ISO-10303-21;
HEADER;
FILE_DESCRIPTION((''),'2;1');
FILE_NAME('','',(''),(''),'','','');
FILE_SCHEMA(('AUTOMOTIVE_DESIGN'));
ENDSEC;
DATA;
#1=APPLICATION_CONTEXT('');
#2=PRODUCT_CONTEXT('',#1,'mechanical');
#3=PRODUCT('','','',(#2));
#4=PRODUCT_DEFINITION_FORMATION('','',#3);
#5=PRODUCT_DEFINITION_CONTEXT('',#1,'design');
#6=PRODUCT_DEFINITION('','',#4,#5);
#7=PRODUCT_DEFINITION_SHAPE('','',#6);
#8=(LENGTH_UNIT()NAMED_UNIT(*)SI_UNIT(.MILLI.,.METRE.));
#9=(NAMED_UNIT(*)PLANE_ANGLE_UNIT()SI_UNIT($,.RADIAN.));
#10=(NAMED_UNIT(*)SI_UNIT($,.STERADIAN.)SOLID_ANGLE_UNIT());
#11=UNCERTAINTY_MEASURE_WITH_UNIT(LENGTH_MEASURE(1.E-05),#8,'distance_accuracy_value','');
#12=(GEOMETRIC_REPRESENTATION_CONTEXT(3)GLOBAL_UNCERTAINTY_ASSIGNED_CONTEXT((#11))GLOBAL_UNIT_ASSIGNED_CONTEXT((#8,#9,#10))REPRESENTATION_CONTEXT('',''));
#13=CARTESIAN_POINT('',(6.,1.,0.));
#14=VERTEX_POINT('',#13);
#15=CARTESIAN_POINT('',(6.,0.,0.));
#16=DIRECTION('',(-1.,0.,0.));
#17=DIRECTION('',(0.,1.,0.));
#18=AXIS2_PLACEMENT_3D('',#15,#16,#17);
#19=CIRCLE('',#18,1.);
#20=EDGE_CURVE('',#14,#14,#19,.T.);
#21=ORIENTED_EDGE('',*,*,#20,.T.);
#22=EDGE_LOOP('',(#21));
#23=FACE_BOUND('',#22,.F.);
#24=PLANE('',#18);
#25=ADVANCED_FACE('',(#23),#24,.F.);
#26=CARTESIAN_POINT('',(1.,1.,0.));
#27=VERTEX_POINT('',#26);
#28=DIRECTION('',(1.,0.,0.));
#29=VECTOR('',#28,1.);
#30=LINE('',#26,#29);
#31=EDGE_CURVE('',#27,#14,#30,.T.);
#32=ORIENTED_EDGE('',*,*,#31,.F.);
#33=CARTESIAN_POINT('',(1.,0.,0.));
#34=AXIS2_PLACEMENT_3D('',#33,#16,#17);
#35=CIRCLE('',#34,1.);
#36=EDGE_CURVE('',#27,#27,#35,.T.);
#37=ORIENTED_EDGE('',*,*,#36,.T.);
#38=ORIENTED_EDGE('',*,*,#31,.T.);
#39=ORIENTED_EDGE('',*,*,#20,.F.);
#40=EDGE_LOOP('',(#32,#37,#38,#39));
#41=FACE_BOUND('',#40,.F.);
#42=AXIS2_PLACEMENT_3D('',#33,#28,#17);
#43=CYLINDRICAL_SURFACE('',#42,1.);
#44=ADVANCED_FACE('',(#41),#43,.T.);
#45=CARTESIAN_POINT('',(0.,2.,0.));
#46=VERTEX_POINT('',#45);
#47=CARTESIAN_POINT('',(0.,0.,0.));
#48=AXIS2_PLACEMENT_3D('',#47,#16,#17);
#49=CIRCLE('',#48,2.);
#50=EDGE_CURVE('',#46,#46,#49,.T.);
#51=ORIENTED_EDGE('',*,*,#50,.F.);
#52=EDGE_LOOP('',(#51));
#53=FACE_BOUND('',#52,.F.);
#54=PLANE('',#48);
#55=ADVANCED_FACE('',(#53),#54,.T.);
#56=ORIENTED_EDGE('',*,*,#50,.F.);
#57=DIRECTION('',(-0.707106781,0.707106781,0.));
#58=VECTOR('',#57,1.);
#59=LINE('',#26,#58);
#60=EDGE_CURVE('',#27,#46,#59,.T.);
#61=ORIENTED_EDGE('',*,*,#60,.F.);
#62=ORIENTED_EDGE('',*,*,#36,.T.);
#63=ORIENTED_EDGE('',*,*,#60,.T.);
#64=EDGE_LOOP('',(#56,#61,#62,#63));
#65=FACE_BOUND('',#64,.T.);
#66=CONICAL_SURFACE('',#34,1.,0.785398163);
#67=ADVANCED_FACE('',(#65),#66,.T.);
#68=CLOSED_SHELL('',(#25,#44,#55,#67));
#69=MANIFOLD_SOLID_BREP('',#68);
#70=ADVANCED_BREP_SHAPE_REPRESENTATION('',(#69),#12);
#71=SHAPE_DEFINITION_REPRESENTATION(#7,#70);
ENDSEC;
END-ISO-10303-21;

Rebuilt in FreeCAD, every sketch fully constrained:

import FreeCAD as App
import Part
import Sketcher
from FreeCAD import Vector
Q = App.Units.Quantity


def add_polygon(sketch, points):
    """Adds a closed chain of lines whose ends are joined by coincident constraints."""
    first, n = sketch.GeometryCount, len(points)
    for a, b in zip(points, points[1:] + points[:1]):
        sketch.addGeometry(Part.LineSegment(App.Vector(*a, 0), App.Vector(*b, 0)), False)
    for i in range(n):
        sketch.addConstraint(Sketcher.Constraint("Coincident", first + i, 2, first + (i + 1) % n, 1))

doc = App.newDocument("Part")
params = doc.addObject("Spreadsheet::Sheet", "Params")
for row, (alias, value) in enumerate([
    ("sketch1_width", "6 mm"),
    ("sketch1_height", "2 mm"),
    ("sketch1_height2", "1 mm"),
    ("revolution_angle", "360 deg"),
], start=1):
    params.set(f"A{row}", alias)
    params.set(f"B{row}", "=" + value)
    params.setAlias(f"B{row}", alias)

body = doc.addObject("PartDesign::Body", "Body")

sketch1 = body.newObject("Sketcher::SketchObject", "Sketch")
sketch1.AttachmentSupport = (doc.getObject("XY_Plane"), [""])
sketch1.MapMode = "FlatFace"
add_polygon(sketch1, [(0, 2), (0, 0), (6, 0), (6, 1), (1, 1)])
sketch1.addConstraint([
    Sketcher.Constraint("Vertical", 0),
    Sketcher.Constraint("Horizontal", 1),
    Sketcher.Constraint("Vertical", 2),
    Sketcher.Constraint("Horizontal", 3),
    Sketcher.Constraint("Coincident", 0, 2, -1, 1),
    Sketcher.Constraint("DistanceX", 1, 1, 1, 2, Q("6 mm")),
    Sketcher.Constraint("DistanceY", 0, 2, 0, 1, Q("2 mm")),
    Sketcher.Constraint("DistanceY", 2, 1, 2, 2, Q("1 mm")),
    Sketcher.Constraint("DistanceX", -1, 1, 3, 2, Q("1 mm")),
])
sketch1.setExpression("Constraints[10]", "Params.sketch1_width")
sketch1.setExpression("Constraints[11]", "Params.sketch1_height")
sketch1.setExpression("Constraints[12]", "Params.sketch1_height2")
revolution = body.newObject("PartDesign::Revolution", "Revolution")
revolution.Profile = sketch1
revolution.ReferenceAxis = (sketch1, ["H_Axis"])
revolution.setExpression("Angle", "Params.revolution_angle")

doc.recompute()
